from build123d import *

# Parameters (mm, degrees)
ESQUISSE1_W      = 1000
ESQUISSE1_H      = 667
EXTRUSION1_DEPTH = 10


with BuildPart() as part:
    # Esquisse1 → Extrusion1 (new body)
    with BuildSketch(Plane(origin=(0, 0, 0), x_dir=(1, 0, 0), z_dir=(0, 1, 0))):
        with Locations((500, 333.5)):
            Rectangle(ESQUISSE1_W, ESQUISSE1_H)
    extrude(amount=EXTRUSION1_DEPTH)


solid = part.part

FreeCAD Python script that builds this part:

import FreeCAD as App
import Part
import Sketcher

V = App.Vector
Q = App.Units.Quantity

doc = App.newDocument("Part")
params = doc.addObject("Spreadsheet::Sheet", "Params")
for row, (alias, value) in enumerate([
    ("sketch1_width", "1000 mm"),
    ("sketch1_height", "667 mm"),
    ("pad1_length", "10 mm"),
], start=1):
    params.set(f"A{row}", alias)
    params.set(f"B{row}", "=" + value)
    params.setAlias(f"B{row}", alias)

body = doc.addObject("PartDesign::Body", "Body")

sketch1 = doc.addObject("Sketcher::SketchObject", "Sketch")
body.addObject(sketch1)
sketch1.AttachmentSupport = (doc.XZ_Plane, [""])
sketch1.MapMode = "FlatFace"
sketch1.addGeometry([
    Part.LineSegment(V(0, -667, 0), V(0, 0, 0)),
    Part.LineSegment(V(0, 0, 0), V(1000, 0, 0)),
    Part.LineSegment(V(1000, 0, 0), V(1000, -667, 0)),
    Part.LineSegment(V(1000, -667, 0), V(0, -667, 0)),
], False)
sketch1.addConstraint([
    Sketcher.Constraint("Coincident", 0, 2, 1, 1),
    Sketcher.Constraint("Coincident", 1, 2, 2, 1),
    Sketcher.Constraint("Coincident", 2, 2, 3, 1),
    Sketcher.Constraint("Coincident", 3, 2, 0, 1),
    Sketcher.Constraint("Vertical", 0),
    Sketcher.Constraint("Horizontal", 1),
    Sketcher.Constraint("Vertical", 2),
    Sketcher.Constraint("Horizontal", 3),
    Sketcher.Constraint("Coincident", 0, 2, -1, 1),
    Sketcher.Constraint("DistanceX", 1, 1, 1, 2, Q("1000 mm")),
    Sketcher.Constraint("DistanceY", 0, 1, 0, 2, Q("667 mm")),
])
sketch1.setExpression("Constraints[9]", "Params.sketch1_width")
sketch1.setExpression("Constraints[10]", "Params.sketch1_height")
pad1 = doc.addObject("PartDesign::Pad", "Pad")
body.addObject(pad1)
pad1.Profile = sketch1
pad1.setExpression("Length", "Params.pad1_length")
pad1.Reversed = True

doc.recompute()
